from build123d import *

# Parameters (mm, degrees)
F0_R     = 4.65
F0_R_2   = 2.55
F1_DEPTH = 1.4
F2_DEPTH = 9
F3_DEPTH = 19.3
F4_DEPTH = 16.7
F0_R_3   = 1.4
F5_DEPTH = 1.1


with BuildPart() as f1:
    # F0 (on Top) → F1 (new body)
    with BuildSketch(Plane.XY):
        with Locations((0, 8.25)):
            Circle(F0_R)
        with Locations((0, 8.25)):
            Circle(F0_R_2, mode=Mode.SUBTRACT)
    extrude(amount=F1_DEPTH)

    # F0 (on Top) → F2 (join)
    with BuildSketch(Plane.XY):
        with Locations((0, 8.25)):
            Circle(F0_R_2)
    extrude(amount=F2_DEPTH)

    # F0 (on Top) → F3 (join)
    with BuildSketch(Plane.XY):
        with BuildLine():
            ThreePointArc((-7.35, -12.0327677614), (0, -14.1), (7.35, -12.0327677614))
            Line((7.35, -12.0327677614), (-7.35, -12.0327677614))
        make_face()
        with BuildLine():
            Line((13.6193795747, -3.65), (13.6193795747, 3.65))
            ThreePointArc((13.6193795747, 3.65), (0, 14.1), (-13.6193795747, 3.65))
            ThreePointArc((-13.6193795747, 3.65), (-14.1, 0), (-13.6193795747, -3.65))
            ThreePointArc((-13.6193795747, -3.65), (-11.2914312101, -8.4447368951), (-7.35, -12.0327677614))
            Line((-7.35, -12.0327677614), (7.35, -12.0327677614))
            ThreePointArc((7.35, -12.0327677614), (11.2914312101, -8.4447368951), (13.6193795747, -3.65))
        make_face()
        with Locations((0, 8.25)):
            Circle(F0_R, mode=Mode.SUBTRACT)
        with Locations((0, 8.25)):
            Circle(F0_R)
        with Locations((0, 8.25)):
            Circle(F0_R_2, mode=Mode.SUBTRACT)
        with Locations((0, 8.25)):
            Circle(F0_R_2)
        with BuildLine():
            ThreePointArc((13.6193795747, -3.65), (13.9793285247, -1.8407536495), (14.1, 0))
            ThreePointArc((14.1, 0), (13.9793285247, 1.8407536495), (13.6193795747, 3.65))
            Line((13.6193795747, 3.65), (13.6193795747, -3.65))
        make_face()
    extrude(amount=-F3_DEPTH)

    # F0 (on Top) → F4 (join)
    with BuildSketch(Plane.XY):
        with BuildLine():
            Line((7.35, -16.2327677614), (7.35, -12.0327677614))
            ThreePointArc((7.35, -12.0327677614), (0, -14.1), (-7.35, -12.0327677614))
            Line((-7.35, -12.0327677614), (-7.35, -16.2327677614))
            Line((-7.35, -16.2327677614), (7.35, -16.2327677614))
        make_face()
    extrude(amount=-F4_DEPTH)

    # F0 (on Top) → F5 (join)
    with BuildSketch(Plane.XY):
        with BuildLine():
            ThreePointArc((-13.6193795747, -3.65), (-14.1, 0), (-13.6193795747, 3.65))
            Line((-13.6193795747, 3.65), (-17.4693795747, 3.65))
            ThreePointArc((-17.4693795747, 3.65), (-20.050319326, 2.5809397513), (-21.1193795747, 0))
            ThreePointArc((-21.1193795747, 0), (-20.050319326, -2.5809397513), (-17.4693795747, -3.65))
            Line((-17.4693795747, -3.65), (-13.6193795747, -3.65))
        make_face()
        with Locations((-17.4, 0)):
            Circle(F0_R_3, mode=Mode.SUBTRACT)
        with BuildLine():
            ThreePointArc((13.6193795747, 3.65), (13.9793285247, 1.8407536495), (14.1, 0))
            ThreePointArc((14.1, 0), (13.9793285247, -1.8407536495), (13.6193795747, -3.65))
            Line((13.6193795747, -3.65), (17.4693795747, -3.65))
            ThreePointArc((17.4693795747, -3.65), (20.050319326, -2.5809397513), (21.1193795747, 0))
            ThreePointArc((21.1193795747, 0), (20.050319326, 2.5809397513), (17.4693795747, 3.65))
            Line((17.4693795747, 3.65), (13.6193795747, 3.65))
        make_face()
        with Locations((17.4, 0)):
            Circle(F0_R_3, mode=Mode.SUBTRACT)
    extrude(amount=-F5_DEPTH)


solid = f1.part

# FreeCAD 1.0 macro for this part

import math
import FreeCAD as App
import Part
import Sketcher
from FreeCAD import Vector

doc = App.newDocument("Part")
body = doc.addObject("PartDesign::Body", "Body")

# Sketch on XY plane
sketch1 = doc.addObject("Sketcher::SketchObject", "Sketch")
body.addObject(sketch1)
sketch1.AttachmentSupport = (doc.XY_Plane, [""])
sketch1.MapMode = "FlatFace"
sketch1.addGeometry(Part.Circle(Vector(0, 8.25, 0), Vector(0, 0, 1), 4.65), False)
sketch1.addGeometry(Part.Circle(Vector(0, 8.25, 0), Vector(0, 0, 1), 2.55), False)
sketch1.addConstraint(Sketcher.Constraint("Coincident", 1, 3, 0, 3))
sketch1.addConstraint(Sketcher.Constraint("PointOnObject", 0, 3, -2))
sketch1.addConstraint(Sketcher.Constraint("Diameter", 0, 9.3))
sketch1.addConstraint(Sketcher.Constraint("Diameter", 1, 5.1))
sketch1.addConstraint(Sketcher.Constraint("DistanceY", -1, 1, 0, 3, 8.25))
pad1 = doc.addObject("PartDesign::Pad", "Pad")
body.addObject(pad1)
pad1.Profile = sketch1
pad1.Length = 1.4

# Sketch on XY plane
sketch2 = doc.addObject("Sketcher::SketchObject", "Sketch001")
body.addObject(sketch2)
sketch2.AttachmentSupport = (doc.XY_Plane, [""])
sketch2.MapMode = "FlatFace"
sketch2.addGeometry(Part.Circle(Vector(0, 8.25, 0), Vector(0, 0, 1), 2.55), False)
sketch2.addConstraint(Sketcher.Constraint("PointOnObject", 0, 3, -2))
sketch2.addConstraint(Sketcher.Constraint("Diameter", 0, 5.1))
sketch2.addConstraint(Sketcher.Constraint("DistanceY", -1, 1, 0, 3, 8.25))
pad2 = doc.addObject("PartDesign::Pad", "Pad001")
body.addObject(pad2)
pad2.Profile = sketch2
pad2.Length = 9

# Sketch on XY plane
sketch3 = doc.addObject("Sketcher::SketchObject", "Sketch002")
body.addObject(sketch3)
sketch3.AttachmentSupport = (doc.XY_Plane, [""])
sketch3.MapMode = "FlatFace"
sketch3.addGeometry(Part.ArcOfCircle(Part.Circle(Vector(0, 0, 0), Vector(0, 0, 1), 14.1), math.radians(-121.417922), math.radians(-58.582078)), False)
sketch3.addGeometry(Part.ArcOfCircle(Part.Circle(Vector(0, 0, 0), Vector(0, 0, 1), 14.1), math.radians(-58.582078), math.radians(-15.002741)), False)
sketch3.addGeometry(Part.ArcOfCircle(Part.Circle(Vector(0, 0, 0), Vector(0, 0, 1), 14.1), math.radians(-15.002741), math.radians(0)), False)
sketch3.addGeometry(Part.ArcOfCircle(Part.Circle(Vector(0, 0, 0), Vector(0, 0, 1), 14.1), math.radians(0), math.radians(15.002741)), False)
sketch3.addGeometry(Part.ArcOfCircle(Part.Circle(Vector(0, 0, 0), Vector(0, 0, 1), 14.1), math.radians(15.002741), math.radians(164.997259)), False)
sketch3.addGeometry(Part.ArcOfCircle(Part.Circle(Vector(0, 0, 0), Vector(0, 0, 1), 14.1), math.radians(164.997259), math.radians(195.002741)), False)
sketch3.addGeometry(Part.ArcOfCircle(Part.Circle(Vector(0, 0, 0), Vector(0, 0, 1), 14.1), math.radians(-164.997259), math.radians(-121.417922)), False)
sketch3.addConstraint(Sketcher.Constraint("Tangent", 0, 2, 1, 1))
sketch3.addConstraint(Sketcher.Constraint("Tangent", 1, 2, 2, 1))
sketch3.addConstraint(Sketcher.Constraint("Tangent", 2, 2, 3, 1))
sketch3.addConstraint(Sketcher.Constraint("Tangent", 3, 2, 4, 1))
sketch3.addConstraint(Sketcher.Constraint("Tangent", 4, 2, 5, 1))
sketch3.addConstraint(Sketcher.Constraint("Tangent", 5, 2, 6, 1))
sketch3.addConstraint(Sketcher.Constraint("Tangent", 6, 2, 0, 1))
sketch3.addConstraint(Sketcher.Constraint("Coincident", 0, 3, -1, 1))
sketch3.addConstraint(Sketcher.Constraint("Coincident", 2, 3, -1, 1))
sketch3.addConstraint(Sketcher.Constraint("Coincident", 4, 3, -1, 1))
sketch3.addConstraint(Sketcher.Constraint("PointOnObject", 2, 2, -1))
sketch3.addConstraint(Sketcher.Constraint("Horizontal", 3, 2, 4, 2))
sketch3.addConstraint(Sketcher.Constraint("Horizontal", 1, 2, 5, 2))
sketch3.addConstraint(Sketcher.Constraint("Horizontal", 0, 2, 6, 2))
sketch3.addConstraint(Sketcher.Constraint("Vertical", 1, 2, 3, 2))
sketch3.addConstraint(Sketcher.Constraint("Radius", 0, 14.1))
sketch3.addConstraint(Sketcher.Constraint("DistanceY", 1, 2, 3, 2, 7.3))
sketch3.addConstraint(Sketcher.Constraint("DistanceX", -1, 1, 0, 2, 7.35))
pad3 = doc.addObject("PartDesign::Pad", "Pad002")
body.addObject(pad3)
pad3.Profile = sketch3
pad3.Length = 19.3
pad3.Reversed = True

# Sketch on XY plane
sketch4 = doc.addObject("Sketcher::SketchObject", "Sketch003")
body.addObject(sketch4)
sketch4.AttachmentSupport = (doc.XY_Plane, [""])
sketch4.MapMode = "FlatFace"
sketch4.addGeometry(Part.LineSegment(Vector(7.35, -16.232768, 0), Vector(7.35, -12.032768, 0)), False)
sketch4.addGeometry(Part.ArcOfCircle(Part.Circle(Vector(0, 0, 0), Vector(0, 0, 1), 14.1), math.radians(-121.417922), math.radians(-58.582078)), False)
sketch4.addGeometry(Part.LineSegment(Vector(-7.35, -12.032768, 0), Vector(-7.35, -16.232768, 0)), False)
sketch4.addGeometry(Part.LineSegment(Vector(-7.35, -16.232768, 0), Vector(7.35, -16.232768, 0)), False)
sketch4.addConstraint(Sketcher.Constraint("Coincident", 0, 2, 1, 2))
sketch4.addConstraint(Sketcher.Constraint("Coincident", 1, 1, 2, 1))
sketch4.addConstraint(Sketcher.Constraint("Coincident", 2, 2, 3, 1))
sketch4.addConstraint(Sketcher.Constraint("Coincident", 3, 2, 0, 1))
sketch4.addConstraint(Sketcher.Constraint("Vertical", 0))
sketch4.addConstraint(Sketcher.Constraint("Vertical", 2))
sketch4.addConstraint(Sketcher.Constraint("Horizontal", 3))
sketch4.addConstraint(Sketcher.Constraint("Coincident", 1, 3, -1, 1))
sketch4.addConstraint(Sketcher.Constraint("Horizontal", 0, 2, 1, 1))
sketch4.addConstraint(Sketcher.Constraint("Radius", 1, 14.1))
sketch4.addConstraint(Sketcher.Constraint("DistanceX", 3, 1, 3, 2, 14.7))
sketch4.addConstraint(Sketcher.Constraint("DistanceY", 0, 1, 0, 2, 4.2))
pad4 = doc.addObject("PartDesign::Pad", "Pad003")
body.addObject(pad4)
pad4.Profile = sketch4
pad4.Length = 16.7
pad4.Reversed = True

# Sketch on XY plane
sketch5 = doc.addObject("Sketcher::SketchObject", "Sketch004")
body.addObject(sketch5)
sketch5.AttachmentSupport = (doc.XY_Plane, [""])
sketch5.MapMode = "FlatFace"
sketch5.addGeometry(Part.ArcOfCircle(Part.Circle(Vector(0, 0, 0), Vector(0, 0, 1), 14.1), math.radians(164.997259), math.radians(195.002741)), False)
sketch5.addGeometry(Part.LineSegment(Vector(-13.61938, 3.65, 0), Vector(-17.46938, 3.65, 0)), False)
sketch5.addGeometry(Part.ArcOfCircle(Part.Circle(Vector(-17.46938, 0, 0), Vector(0, 0, 1), 3.65), math.radians(90), math.radians(180)), False)
sketch5.addGeometry(Part.ArcOfCircle(Part.Circle(Vector(-17.46938, 0, 0), Vector(0, 0, 1), 3.65), math.radians(180), math.radians(270)), False)
sketch5.addGeometry(Part.LineSegment(Vector(-17.46938, -3.65, 0), Vector(-13.61938, -3.65, 0)), False)
sketch5.addGeometry(Part.Circle(Vector(-17.4, 0, 0), Vector(0, 0, 1), 1.4), False)
sketch5.addGeometry(Part.ArcOfCircle(Part.Circle(Vector(0, 0, 0), Vector(0, 0, 1), 14.1), math.radians(0), math.radians(15.002741)), False)
sketch5.addGeometry(Part.ArcOfCircle(Part.Circle(Vector(0, 0, 0), Vector(0, 0, 1), 14.1), math.radians(-15.002741), math.radians(0)), False)
sketch5.addGeometry(Part.LineSegment(Vector(13.61938, -3.65, 0), Vector(17.46938, -3.65, 0)), False)
sketch5.addGeometry(Part.ArcOfCircle(Part.Circle(Vector(17.46938, 0, 0), Vector(0, 0, 1), 3.65), math.radians(-90), math.radians(0)), False)
sketch5.addGeometry(Part.ArcOfCircle(Part.Circle(Vector(17.46938, 0, 0), Vector(0, 0, 1), 3.65), math.radians(0), math.radians(90)), False)
sketch5.addGeometry(Part.LineSegment(Vector(17.46938, 3.65, 0), Vector(13.61938, 3.65, 0)), False)
sketch5.addGeometry(Part.Circle(Vector(17.4, 0, 0), Vector(0, 0, 1), 1.4), False)
sketch5.addConstraint(Sketcher.Constraint("Coincident", 0, 1, 1, 1))
sketch5.addConstraint(Sketcher.Constraint("Tangent", 1, 2, 2, 1))
sketch5.addConstraint(Sketcher.Constraint("Tangent", 2, 2, 3, 1))
sketch5.addConstraint(Sketcher.Constraint("Tangent", 3, 2, 4, 1))
sketch5.addConstraint(Sketcher.Constraint("Coincident", 4, 2, 0, 2))
sketch5.addConstraint(Sketcher.Constraint("Tangent", 6, 1, 7, 2))
sketch5.addConstraint(Sketcher.Constraint("Coincident", 7, 1, 8, 1))
sketch5.addConstraint(Sketcher.Constraint("Tangent", 8, 2, 9, 1))
sketch5.addConstraint(Sketcher.Constraint("Tangent", 9, 2, 10, 1))
sketch5.addConstraint(Sketcher.Constraint("Tangent", 10, 2, 11, 1))
sketch5.addConstraint(Sketcher.Constraint("Coincident", 11, 2, 6, 2))
sketch5.addConstraint(Sketcher.Constraint("Horizontal", 1))
sketch5.addConstraint(Sketcher.Constraint("Horizontal", 4))
sketch5.addConstraint(Sketcher.Constraint("Horizontal", 8))
sketch5.addConstraint(Sketcher.Constraint("Horizontal", 11))
sketch5.addConstraint(Sketcher.Constraint("Coincident", 0, 3, -1, 1))
sketch5.addConstraint(Sketcher.Constraint("Coincident", 6, 3, -1, 1))
sketch5.addConstraint(Sketcher.Constraint("Equal", 2, 3))
sketch5.addConstraint(Sketcher.Constraint("Equal", 0, 6))
sketch5.addConstraint(Sketcher.Constraint("Equal", 6, 7))
sketch5.addConstraint(Sketcher.Constraint("Equal", 3, 9))
sketch5.addConstraint(Sketcher.Constraint("Equal", 9, 10))
sketch5.addConstraint(Sketcher.Constraint("Equal", 5, 12))
sketch5.addConstraint(Sketcher.Constraint("Symmetric", 2, 3, 9, 3, -1, 1))
sketch5.addConstraint(Sketcher.Constraint("Symmetric", 5, 3, 12, 3, -1, 1))
sketch5.addConstraint(Sketcher.Constraint("PointOnObject", 2, 3, -1))
sketch5.addConstraint(Sketcher.Constraint("PointOnObject", 5, 3, -1))
sketch5.addConstraint(Sketcher.Constraint("PointOnObject", 2, 2, -1))
sketch5.addConstraint(Sketcher.Constraint("PointOnObject", 6, 1, -1))
sketch5.addConstraint(Sketcher.Constraint("PointOnObject", 9, 2, -1))
sketch5.addConstraint(Sketcher.Constraint("Diameter", 5, 2.8))
sketch5.addConstraint(Sketcher.Constraint("Radius", 0, 14.1))
sketch5.addConstraint(Sketcher.Constraint("Radius", 2, 3.65))
sketch5.addConstraint(Sketcher.Constraint("DistanceX", 1, 2, 1, 1, 3.85))
sketch5.addConstraint(Sketcher.Constraint("DistanceX", 5, 3, -1, 1, 17.4))
pad5 = doc.addObject("PartDesign::Pad", "Pad004")
body.addObject(pad5)
pad5.Profile = sketch5
pad5.Length = 1.1
pad5.Reversed = True

doc.recompute()
